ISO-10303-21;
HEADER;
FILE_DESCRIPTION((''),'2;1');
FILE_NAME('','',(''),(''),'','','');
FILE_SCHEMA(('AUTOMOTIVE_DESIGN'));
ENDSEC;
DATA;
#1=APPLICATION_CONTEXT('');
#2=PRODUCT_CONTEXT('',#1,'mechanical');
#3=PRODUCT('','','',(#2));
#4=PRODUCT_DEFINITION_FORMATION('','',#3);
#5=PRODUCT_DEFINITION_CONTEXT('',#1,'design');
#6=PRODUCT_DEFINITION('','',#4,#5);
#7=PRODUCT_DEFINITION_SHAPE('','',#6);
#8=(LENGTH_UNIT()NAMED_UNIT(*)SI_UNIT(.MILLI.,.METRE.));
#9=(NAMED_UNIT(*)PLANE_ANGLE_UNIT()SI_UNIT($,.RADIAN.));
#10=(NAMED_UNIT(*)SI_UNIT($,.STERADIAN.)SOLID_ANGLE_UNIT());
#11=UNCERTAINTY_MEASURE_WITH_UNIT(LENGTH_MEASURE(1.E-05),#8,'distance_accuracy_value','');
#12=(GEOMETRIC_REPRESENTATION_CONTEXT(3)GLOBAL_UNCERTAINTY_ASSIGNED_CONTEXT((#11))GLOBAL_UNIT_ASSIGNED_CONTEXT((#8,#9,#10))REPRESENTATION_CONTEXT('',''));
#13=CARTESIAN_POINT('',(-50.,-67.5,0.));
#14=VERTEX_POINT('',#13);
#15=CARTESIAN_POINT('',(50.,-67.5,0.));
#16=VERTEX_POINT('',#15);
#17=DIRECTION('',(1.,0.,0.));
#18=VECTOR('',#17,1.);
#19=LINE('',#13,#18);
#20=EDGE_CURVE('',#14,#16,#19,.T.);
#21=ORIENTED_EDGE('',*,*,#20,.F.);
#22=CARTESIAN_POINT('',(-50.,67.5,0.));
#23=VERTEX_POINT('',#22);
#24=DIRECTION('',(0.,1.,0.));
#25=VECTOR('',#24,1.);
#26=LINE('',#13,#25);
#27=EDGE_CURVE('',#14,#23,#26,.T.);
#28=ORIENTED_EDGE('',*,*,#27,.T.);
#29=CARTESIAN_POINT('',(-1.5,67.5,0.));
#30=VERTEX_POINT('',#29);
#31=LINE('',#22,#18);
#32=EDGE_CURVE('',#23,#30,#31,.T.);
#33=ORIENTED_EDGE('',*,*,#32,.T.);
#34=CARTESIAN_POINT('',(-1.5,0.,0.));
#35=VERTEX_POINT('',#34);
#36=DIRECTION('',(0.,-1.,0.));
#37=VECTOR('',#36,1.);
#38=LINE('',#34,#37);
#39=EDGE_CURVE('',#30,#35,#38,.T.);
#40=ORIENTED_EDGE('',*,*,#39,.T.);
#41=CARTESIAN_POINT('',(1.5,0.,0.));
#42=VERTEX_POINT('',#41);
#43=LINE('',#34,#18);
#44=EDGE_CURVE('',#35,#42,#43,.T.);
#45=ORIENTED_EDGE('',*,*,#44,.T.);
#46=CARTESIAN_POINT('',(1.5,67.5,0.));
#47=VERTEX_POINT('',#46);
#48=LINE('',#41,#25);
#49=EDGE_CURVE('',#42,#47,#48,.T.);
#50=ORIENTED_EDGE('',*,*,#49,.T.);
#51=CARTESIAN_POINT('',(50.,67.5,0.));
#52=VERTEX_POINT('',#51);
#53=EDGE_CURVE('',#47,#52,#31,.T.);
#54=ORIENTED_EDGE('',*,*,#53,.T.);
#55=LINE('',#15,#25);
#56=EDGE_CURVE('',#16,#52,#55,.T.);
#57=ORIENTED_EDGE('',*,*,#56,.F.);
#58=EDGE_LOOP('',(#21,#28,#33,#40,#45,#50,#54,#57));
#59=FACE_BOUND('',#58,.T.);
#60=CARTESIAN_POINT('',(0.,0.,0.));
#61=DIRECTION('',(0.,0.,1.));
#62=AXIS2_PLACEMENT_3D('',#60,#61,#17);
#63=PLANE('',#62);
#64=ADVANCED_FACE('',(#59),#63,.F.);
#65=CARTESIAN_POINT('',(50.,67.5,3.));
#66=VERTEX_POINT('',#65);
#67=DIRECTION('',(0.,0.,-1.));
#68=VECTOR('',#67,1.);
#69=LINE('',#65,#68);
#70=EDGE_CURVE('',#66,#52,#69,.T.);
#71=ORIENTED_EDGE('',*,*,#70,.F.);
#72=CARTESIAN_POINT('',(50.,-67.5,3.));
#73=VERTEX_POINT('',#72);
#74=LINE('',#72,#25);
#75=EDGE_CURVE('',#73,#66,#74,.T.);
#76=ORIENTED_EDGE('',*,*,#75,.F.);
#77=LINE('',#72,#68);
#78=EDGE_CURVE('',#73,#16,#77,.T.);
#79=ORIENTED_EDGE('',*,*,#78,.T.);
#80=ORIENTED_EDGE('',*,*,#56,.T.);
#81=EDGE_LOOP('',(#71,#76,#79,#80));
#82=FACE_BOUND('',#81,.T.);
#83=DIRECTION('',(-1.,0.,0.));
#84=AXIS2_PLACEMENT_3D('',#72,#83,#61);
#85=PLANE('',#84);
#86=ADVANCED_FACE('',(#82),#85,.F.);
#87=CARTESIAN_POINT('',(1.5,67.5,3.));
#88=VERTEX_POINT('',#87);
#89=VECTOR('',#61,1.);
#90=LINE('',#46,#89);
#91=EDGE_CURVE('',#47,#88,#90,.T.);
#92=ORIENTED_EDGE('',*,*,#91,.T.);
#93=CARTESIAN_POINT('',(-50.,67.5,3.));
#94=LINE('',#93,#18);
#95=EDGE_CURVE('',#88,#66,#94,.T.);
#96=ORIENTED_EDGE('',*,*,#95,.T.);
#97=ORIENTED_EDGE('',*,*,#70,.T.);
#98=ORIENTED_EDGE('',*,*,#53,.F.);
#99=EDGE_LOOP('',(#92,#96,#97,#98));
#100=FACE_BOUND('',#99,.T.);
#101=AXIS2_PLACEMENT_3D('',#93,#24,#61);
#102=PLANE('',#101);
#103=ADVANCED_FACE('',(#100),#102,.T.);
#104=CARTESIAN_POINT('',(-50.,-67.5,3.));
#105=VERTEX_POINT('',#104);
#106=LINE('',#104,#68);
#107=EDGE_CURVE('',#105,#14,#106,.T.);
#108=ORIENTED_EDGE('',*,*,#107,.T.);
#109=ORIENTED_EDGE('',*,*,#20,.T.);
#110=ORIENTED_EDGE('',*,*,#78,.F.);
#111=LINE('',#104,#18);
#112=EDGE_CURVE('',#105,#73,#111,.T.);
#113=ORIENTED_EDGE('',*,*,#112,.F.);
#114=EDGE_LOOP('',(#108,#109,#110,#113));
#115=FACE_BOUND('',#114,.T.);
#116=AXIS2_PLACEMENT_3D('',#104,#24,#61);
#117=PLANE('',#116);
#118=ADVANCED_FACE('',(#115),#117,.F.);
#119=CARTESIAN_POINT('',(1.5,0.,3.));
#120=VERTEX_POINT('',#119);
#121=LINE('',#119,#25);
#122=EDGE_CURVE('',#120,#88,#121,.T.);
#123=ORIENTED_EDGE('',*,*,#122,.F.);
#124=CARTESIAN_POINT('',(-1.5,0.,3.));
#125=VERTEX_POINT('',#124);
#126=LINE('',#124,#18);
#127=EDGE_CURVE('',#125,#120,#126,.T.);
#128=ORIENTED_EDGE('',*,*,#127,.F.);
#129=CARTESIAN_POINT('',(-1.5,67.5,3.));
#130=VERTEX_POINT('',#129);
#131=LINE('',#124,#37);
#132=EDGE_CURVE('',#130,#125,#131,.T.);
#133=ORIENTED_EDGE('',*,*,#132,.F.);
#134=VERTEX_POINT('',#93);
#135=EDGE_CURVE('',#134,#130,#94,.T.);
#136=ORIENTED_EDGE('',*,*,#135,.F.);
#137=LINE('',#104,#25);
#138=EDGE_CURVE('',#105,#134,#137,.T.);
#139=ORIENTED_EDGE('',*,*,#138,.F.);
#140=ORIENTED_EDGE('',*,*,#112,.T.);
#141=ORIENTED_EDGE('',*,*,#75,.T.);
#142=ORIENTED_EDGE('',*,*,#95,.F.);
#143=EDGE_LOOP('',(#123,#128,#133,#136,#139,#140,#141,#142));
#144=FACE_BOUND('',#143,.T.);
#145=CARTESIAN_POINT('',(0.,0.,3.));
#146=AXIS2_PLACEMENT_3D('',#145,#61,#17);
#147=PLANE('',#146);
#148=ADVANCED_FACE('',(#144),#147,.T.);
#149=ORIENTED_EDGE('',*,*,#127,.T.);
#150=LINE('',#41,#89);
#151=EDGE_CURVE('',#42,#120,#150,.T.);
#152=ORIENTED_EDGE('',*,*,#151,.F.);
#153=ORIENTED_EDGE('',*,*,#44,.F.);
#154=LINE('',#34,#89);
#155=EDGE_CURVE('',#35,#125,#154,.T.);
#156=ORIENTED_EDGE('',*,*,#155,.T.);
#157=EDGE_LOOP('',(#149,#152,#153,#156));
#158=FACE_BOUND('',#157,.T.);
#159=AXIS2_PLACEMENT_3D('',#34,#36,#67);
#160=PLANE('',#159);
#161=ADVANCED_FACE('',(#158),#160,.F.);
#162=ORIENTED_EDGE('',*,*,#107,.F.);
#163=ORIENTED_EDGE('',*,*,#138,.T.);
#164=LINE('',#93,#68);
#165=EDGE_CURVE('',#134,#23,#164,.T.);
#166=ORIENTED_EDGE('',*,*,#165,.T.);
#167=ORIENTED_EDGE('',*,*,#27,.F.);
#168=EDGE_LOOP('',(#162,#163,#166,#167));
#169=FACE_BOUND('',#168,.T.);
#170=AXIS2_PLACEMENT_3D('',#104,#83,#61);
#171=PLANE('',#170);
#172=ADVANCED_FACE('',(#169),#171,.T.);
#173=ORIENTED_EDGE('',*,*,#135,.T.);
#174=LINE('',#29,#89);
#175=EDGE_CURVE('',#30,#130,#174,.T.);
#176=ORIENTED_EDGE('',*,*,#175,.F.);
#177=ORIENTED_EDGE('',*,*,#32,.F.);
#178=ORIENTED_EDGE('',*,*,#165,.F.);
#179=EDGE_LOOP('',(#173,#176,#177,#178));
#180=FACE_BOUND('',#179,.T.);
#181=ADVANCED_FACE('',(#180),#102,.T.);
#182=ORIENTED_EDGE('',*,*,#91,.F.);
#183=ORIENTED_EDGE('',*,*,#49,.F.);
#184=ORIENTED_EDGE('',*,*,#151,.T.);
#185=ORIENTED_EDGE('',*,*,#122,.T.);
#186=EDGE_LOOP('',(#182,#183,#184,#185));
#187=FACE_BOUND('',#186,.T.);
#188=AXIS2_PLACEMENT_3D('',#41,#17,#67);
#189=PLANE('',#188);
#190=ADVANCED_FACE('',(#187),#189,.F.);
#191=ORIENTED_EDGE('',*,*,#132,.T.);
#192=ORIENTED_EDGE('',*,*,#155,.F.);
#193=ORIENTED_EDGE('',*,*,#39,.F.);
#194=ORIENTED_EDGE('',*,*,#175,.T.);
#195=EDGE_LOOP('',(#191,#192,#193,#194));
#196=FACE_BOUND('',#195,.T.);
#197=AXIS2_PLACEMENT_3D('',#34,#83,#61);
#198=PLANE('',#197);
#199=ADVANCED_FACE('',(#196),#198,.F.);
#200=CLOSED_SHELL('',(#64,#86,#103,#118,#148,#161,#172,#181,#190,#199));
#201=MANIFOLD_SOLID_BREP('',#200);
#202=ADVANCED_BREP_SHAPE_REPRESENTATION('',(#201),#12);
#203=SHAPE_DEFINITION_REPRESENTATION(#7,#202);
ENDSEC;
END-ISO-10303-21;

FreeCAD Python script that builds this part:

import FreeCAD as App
import Part
import Sketcher
Q = App.Units.Quantity

doc = App.newDocument("Part")
body = doc.addObject("PartDesign::Body", "Body")

sketch1 = doc.addObject("Sketcher::SketchObject", "Sketch")
body.addObject(sketch1)
sketch1.AttachmentSupport = (doc.XY_Plane, [""])
sketch1.MapMode = "FlatFace"
sketch1.addGeometry([
    Part.LineSegment(App.Vector(-50, 68, 0), App.Vector(-50, -68, 0)),
    Part.LineSegment(App.Vector(-50, -68, 0), App.Vector(50, -68, 0)),
    Part.LineSegment(App.Vector(50, -68, 0), App.Vector(50, 68, 0)),
    Part.LineSegment(App.Vector(50, 68, 0), App.Vector(-50, 68, 0)),
], False)
sketch1.addConstraint([
    Sketcher.Constraint("Coincident", 0, 2, 1, 1),
    Sketcher.Constraint("Coincident", 1, 2, 2, 1),
    Sketcher.Constraint("Coincident", 2, 2, 3, 1),
    Sketcher.Constraint("Coincident", 3, 2, 0, 1),
    Sketcher.Constraint("Vertical", 0),
    Sketcher.Constraint("Horizontal", 1),
    Sketcher.Constraint("Vertical", 2),
    Sketcher.Constraint("Horizontal", 3),
    Sketcher.Constraint("Symmetric", 0, 2, 2, 2, -1, 1),
    Sketcher.Constraint("DistanceX", 1, 1, 1, 2, Q("100 mm")),
    Sketcher.Constraint("DistanceY", 0, 2, 0, 1, Q("135 mm")),
])
pad1 = doc.addObject("PartDesign::Pad", "Pad")
body.addObject(pad1)
pad1.Profile = sketch1
pad1.Length = 3

sketch2 = doc.addObject("Sketcher::SketchObject", "Sketch001")
body.addObject(sketch2)
sketch2.AttachmentSupport = (doc.XY_Plane, [""])
sketch2.MapMode = "FlatFace"
sketch2.AttachmentOffset = App.Placement(App.Vector(0, 0, 3), App.Rotation())
sketch2.addGeometry([
    Part.LineSegment(App.Vector(-1.5, 67.5, 0), App.Vector(-1.5, 0, 0)),
    Part.LineSegment(App.Vector(-1.5, 0, 0), App.Vector(1.5, 0, 0)),
    Part.LineSegment(App.Vector(1.5, 0, 0), App.Vector(1.5, 67.5, 0)),
    Part.LineSegment(App.Vector(1.5, 67.5, 0), App.Vector(-1.5, 67.5, 0)),
], False)
sketch2.addConstraint([
    Sketcher.Constraint("Coincident", 0, 2, 1, 1),
    Sketcher.Constraint("Coincident", 1, 2, 2, 1),
    Sketcher.Constraint("Coincident", 2, 2, 3, 1),
    Sketcher.Constraint("Coincident", 3, 2, 0, 1),
    Sketcher.Constraint("Vertical", 0),
    Sketcher.Constraint("Horizontal", 1),
    Sketcher.Constraint("Vertical", 2),
    Sketcher.Constraint("Horizontal", 3),
    Sketcher.Constraint("Symmetric", 0, 2, 1, 2, -1, 1),
    Sketcher.Constraint("DistanceX", 1, 1, 1, 2, Q("3 mm")),
    Sketcher.Constraint("DistanceY", 0, 2, 0, 1, Q("67.5 mm")),
])
pocket1 = doc.addObject("PartDesign::Pocket", "Pocket")
body.addObject(pocket1)
pocket1.Profile = sketch2
pocket1.Length = 3

doc.recompute()
